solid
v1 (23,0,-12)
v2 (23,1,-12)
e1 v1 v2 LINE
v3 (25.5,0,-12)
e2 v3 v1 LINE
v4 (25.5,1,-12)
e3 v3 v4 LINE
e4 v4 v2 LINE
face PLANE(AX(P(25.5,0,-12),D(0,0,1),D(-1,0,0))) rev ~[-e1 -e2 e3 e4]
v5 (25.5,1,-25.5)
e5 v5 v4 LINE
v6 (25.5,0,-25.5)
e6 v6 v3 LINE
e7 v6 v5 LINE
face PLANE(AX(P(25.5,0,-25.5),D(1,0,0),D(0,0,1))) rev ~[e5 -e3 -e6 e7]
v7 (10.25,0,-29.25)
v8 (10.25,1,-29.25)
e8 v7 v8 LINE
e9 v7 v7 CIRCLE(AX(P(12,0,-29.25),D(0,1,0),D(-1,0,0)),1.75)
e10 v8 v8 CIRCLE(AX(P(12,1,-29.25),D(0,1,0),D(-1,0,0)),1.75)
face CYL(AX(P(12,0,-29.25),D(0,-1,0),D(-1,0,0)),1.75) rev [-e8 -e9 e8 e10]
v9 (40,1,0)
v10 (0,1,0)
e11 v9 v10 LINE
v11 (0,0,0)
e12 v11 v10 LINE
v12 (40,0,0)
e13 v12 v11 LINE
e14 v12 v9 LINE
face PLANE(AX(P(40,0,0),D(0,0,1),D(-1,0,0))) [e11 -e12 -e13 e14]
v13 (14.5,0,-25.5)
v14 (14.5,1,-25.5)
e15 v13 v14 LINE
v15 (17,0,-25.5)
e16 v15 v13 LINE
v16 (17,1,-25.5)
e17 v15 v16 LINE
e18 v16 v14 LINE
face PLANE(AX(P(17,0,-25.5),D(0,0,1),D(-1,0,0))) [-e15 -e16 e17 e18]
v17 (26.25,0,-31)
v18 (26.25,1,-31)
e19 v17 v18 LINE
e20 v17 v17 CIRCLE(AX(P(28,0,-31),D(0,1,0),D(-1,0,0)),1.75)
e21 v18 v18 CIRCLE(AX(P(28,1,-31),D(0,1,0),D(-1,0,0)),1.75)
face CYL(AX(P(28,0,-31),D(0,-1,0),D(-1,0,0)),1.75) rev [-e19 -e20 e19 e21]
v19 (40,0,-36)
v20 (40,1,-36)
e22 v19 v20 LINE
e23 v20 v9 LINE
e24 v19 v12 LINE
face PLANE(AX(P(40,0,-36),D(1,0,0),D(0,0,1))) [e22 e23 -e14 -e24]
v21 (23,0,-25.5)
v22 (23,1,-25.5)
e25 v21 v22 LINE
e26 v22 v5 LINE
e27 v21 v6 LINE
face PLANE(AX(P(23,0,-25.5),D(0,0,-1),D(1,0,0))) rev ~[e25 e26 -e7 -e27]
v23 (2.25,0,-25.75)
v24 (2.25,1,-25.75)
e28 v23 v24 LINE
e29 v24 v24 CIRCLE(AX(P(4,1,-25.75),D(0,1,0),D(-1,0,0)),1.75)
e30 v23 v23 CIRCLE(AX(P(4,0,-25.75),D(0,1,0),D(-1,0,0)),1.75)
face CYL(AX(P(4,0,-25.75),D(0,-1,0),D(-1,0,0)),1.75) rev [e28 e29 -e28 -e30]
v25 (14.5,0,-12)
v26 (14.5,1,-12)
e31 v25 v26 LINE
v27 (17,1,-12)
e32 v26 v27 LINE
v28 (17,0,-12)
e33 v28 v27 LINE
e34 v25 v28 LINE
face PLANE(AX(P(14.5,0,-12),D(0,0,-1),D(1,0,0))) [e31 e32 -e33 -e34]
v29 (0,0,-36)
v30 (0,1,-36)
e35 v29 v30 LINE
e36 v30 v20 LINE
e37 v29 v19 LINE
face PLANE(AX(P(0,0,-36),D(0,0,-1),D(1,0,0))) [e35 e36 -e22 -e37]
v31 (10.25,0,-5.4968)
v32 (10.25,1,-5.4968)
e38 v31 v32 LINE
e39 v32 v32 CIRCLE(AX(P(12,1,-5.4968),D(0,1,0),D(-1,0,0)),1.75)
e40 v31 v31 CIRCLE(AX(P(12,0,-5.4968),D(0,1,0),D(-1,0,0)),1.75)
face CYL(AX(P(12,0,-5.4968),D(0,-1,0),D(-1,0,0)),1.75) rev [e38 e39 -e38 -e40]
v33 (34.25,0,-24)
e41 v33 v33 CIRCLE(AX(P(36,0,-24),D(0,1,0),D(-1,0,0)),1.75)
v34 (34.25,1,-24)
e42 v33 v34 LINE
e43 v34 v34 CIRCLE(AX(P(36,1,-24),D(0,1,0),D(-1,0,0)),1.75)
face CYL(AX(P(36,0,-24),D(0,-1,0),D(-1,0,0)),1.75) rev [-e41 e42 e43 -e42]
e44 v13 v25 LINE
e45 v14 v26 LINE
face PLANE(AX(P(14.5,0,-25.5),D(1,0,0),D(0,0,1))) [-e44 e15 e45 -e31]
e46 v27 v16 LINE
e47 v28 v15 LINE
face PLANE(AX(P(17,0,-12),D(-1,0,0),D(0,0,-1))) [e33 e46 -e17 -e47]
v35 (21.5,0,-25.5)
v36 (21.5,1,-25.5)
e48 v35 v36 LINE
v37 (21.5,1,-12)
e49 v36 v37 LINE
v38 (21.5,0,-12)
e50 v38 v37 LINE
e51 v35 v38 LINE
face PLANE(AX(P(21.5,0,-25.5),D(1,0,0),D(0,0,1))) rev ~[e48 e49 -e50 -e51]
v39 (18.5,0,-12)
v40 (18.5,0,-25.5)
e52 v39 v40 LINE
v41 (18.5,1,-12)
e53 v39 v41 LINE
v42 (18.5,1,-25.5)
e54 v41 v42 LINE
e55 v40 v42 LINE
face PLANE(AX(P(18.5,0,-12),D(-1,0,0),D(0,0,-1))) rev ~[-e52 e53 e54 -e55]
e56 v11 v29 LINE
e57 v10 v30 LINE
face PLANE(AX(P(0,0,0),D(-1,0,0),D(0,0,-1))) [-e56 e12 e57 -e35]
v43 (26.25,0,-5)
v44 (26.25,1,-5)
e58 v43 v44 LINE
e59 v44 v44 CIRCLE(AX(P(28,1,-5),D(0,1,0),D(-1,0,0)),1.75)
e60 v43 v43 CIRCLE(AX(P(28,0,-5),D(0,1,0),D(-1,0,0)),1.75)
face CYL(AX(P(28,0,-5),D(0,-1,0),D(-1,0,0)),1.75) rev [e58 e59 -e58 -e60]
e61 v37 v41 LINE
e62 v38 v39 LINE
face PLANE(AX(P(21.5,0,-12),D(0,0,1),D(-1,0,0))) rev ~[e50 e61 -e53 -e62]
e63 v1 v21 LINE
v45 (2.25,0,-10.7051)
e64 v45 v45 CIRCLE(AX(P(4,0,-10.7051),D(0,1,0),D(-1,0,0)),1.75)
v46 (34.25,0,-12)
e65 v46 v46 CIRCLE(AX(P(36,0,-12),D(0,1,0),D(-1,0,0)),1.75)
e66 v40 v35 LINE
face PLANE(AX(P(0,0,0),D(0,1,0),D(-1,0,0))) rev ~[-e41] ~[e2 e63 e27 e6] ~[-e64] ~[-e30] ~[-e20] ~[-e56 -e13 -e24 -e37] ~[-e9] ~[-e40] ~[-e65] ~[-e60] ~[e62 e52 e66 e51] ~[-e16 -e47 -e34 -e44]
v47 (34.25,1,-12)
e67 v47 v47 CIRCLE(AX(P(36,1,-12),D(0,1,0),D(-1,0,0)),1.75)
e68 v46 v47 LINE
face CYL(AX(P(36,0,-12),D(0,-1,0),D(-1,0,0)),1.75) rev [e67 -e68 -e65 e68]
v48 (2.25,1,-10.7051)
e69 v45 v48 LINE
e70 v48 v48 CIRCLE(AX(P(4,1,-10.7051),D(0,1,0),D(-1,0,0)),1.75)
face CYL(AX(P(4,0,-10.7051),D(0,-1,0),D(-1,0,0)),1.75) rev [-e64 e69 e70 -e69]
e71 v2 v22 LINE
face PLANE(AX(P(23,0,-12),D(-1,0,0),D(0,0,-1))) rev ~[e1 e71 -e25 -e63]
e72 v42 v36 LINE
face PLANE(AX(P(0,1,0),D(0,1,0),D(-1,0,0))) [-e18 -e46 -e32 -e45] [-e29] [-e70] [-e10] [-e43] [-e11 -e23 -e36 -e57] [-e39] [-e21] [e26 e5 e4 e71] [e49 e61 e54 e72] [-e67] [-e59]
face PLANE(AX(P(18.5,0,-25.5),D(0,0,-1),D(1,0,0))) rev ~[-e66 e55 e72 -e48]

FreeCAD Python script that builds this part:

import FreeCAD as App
import Part
import Sketcher

V = App.Vector


def add_polygon(sketch, points):
    """Adds a closed chain of lines whose ends are joined by coincident constraints."""
    first, n = sketch.GeometryCount, len(points)
    for a, b in zip(points, points[1:] + points[:1]):
        sketch.addGeometry(Part.LineSegment(App.Vector(*a, 0), App.Vector(*b, 0)), False)
    for i in range(n):
        sketch.addConstraint(Sketcher.Constraint("Coincident", first + i, 2, first + (i + 1) % n, 1))

doc = App.newDocument("Part")
body = doc.addObject("PartDesign::Body", "Body")

# Sketch on XZ plane
sketch1 = body.newObject("Sketcher::SketchObject", "Sketch")
sketch1.AttachmentSupport = (doc.getObject("XZ_Plane"), [""])
sketch1.MapMode = "FlatFace"
add_polygon(sketch1, [(0, -36), (0, 0), (40, 0), (40, -36)])  # lines 0-3
sketch1.addGeometry(Part.Circle(V(28, -31, 0), V(0, 0, 1), 1.75), False)  # 4
sketch1.addGeometry(Part.Circle(V(36, -24, 0), V(0, 0, 1), 1.75), False)  # 5
add_polygon(sketch1, [(25.5, -12), (23, -12), (23, -25.5), (25.5, -25.5)])  # lines 6-9
sketch1.addGeometry(Part.Circle(V(12, -29.25, 0), V(0, 0, 1), 1.75), False)  # 10
add_polygon(sketch1, [(21.5, -12), (18.5, -12), (18.5, -25.5), (21.5, -25.5)])  # lines 11-14
add_polygon(sketch1, [(17, -25.5), (17, -12), (14.5, -12), (14.5, -25.5)])  # lines 15-18
sketch1.addGeometry(Part.Circle(V(4, -25.75, 0), V(0, 0, 1), 1.75), False)  # 19
sketch1.addGeometry(Part.Circle(V(36, -12, 0), V(0, 0, 1), 1.75), False)  # 20
sketch1.addGeometry(Part.Circle(V(28, -5, 0), V(0, 0, 1), 1.75), False)  # 21
sketch1.addGeometry(Part.Circle(V(4, -10.7051, 0), V(0, 0, 1), 1.75), False)  # 22
sketch1.addGeometry(Part.Circle(V(12, -5.4968, 0), V(0, 0, 1), 1.75), False)  # 23
sketch1.addConstraint([
    Sketcher.Constraint("Vertical", 0),
    Sketcher.Constraint("Horizontal", 1),
    Sketcher.Constraint("Vertical", 2),
    Sketcher.Constraint("Horizontal", 3),
    Sketcher.Constraint("Horizontal", 6),
    Sketcher.Constraint("Vertical", 7),
    Sketcher.Constraint("Horizontal", 8),
    Sketcher.Constraint("Vertical", 9),
    Sketcher.Constraint("Horizontal", 11),
    Sketcher.Constraint("Vertical", 12),
    Sketcher.Constraint("Horizontal", 13),
    Sketcher.Constraint("Vertical", 14),
    Sketcher.Constraint("Vertical", 15),
    Sketcher.Constraint("Horizontal", 16),
    Sketcher.Constraint("Vertical", 17),
    Sketcher.Constraint("Horizontal", 18),
    Sketcher.Constraint("Coincident", 0, 2, -1, 1),
    Sketcher.Constraint("Equal", 4, 5),
    Sketcher.Constraint("Equal", 5, 10),
    Sketcher.Constraint("Equal", 10, 19),
    Sketcher.Constraint("Equal", 19, 20),
    Sketcher.Constraint("Equal", 20, 21),
    Sketcher.Constraint("Equal", 21, 22),
    Sketcher.Constraint("Equal", 22, 23),
    Sketcher.Constraint("Horizontal", 20, 3, 6, 2),
    Sketcher.Constraint("Horizontal", 9, 2, 11, 2),
    Sketcher.Constraint("Horizontal", 8, 2, 12, 2),
    Sketcher.Constraint("Horizontal", 14, 2, 15, 2),
    Sketcher.Constraint("Horizontal", 13, 2, 17, 2),
    Sketcher.Constraint("Vertical", 5, 3, 20, 3),
    Sketcher.Constraint("Vertical", 4, 3, 21, 3),
    Sketcher.Constraint("Vertical", 19, 3, 22, 3),
    Sketcher.Constraint("Vertical", 10, 3, 23, 3),
    Sketcher.Constraint("Equal", 8, 16),
    Sketcher.Constraint("Diameter", 4, 3.5),
    Sketcher.Constraint("DistanceX", 1, 1, 1, 2, 40.0),
    Sketcher.Constraint("DistanceX", 11, 2, 11, 1, 3.0),
    Sketcher.Constraint("DistanceY", 0, 1, 0, 2, 36.0),
    Sketcher.Constraint("DistanceX", 6, 2, 6, 1, 2.5),
    Sketcher.Constraint("DistanceY", 7, 2, 7, 1, 13.5),
    Sketcher.Constraint("DistanceX", -1, 1, 5, 3, 36.0),
    Sketcher.Constraint("DistanceY", 5, 3, -1, 1, 24.0),
    Sketcher.Constraint("DistanceX", -1, 1, 10, 3, 12.0),
    Sketcher.Constraint("DistanceX", -1, 1, 19, 3, 4.0),
    Sketcher.Constraint("DistanceY", 20, 3, -1, 1, 12.0),
    Sketcher.Constraint("DistanceY", 21, 3, -1, 1, 5.0),
    Sketcher.Constraint("DistanceX", -1, 1, 6, 2, 23.0),
    Sketcher.Constraint("DistanceX", -1, 1, 15, 2, 17.0),
    Sketcher.Constraint("DistanceX", 10, 3, 4, 3, 16.0),
    Sketcher.Constraint("DistanceY", 2, 2, 4, 3, 5.0),
    Sketcher.Constraint("DistanceX", 13, 2, 8, 2, 4.0),
    Sketcher.Constraint("DistanceY", 10, 3, 19, 3, 3.5),
    Sketcher.Constraint("DistanceY", 10, 3, -1, 1, 29.25),
    Sketcher.Constraint("DistanceY", 22, 3, -1, 1, 10.705),
    Sketcher.Constraint("DistanceY", 23, 3, -1, 1, 5.4968),
])
pad1 = body.newObject("PartDesign::Pad", "Pad")
pad1.Profile = sketch1
pad1.Length = 1
pad1.Reversed = True

doc.recompute()
